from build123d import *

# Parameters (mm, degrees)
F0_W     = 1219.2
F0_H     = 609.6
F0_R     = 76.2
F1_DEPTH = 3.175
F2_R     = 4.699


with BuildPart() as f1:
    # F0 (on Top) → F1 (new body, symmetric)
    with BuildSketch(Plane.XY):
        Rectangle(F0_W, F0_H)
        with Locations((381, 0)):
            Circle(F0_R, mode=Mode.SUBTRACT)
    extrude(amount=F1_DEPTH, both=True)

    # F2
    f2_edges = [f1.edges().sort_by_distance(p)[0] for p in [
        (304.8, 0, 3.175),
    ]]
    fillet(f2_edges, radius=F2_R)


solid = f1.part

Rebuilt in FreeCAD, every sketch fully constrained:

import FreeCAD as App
import Part
import Sketcher
Q = App.Units.Quantity


def edges_at(feature, points):
    """Names of the edges that pass closest to the given points."""
    edges = feature.Shape.Edges
    near = lambda p: min(range(len(edges)), key=lambda i: edges[i].distToShape(Part.Vertex(*p))[0])
    return sorted({f"Edge{near(p) + 1}" for p in points})


def add_polygon(sketch, points):
    """Adds a closed chain of lines whose ends are joined by coincident constraints."""
    first, n = sketch.GeometryCount, len(points)
    for a, b in zip(points, points[1:] + points[:1]):
        sketch.addGeometry(Part.LineSegment(App.Vector(*a, 0), App.Vector(*b, 0)), False)
    for i in range(n):
        sketch.addConstraint(Sketcher.Constraint("Coincident", first + i, 2, first + (i + 1) % n, 1))

doc = App.newDocument("Part")
body = doc.addObject("PartDesign::Body", "Body")

# Sketch on XY plane
sketch1 = body.newObject("Sketcher::SketchObject", "Sketch")
sketch1.AttachmentSupport = (doc.getObject("XY_Plane"), [""])
sketch1.MapMode = "FlatFace"
add_polygon(sketch1, [(-609.6, 304.8), (-609.6, -304.8), (609.6, -304.8), (609.6, 304.8)])  # lines 0-3
sketch1.addGeometry(Part.Circle(App.Vector(381, 0, 0), App.Vector(0, 0, 1), 76.2), False)  # 4
sketch1.addConstraint(Sketcher.Constraint("Vertical", 0))
sketch1.addConstraint(Sketcher.Constraint("Horizontal", 1))
sketch1.addConstraint(Sketcher.Constraint("Vertical", 2))
sketch1.addConstraint(Sketcher.Constraint("Horizontal", 3))
sketch1.addConstraint(Sketcher.Constraint("Symmetric", 0, 2, 2, 2, -1, 1))
sketch1.addConstraint(Sketcher.Constraint("PointOnObject", 4, 3, -1))
sketch1.addConstraint(Sketcher.Constraint("Diameter", 4, Q("6 in")))
sketch1.addConstraint(Sketcher.Constraint("DistanceX", 1, 1, 1, 2, Q("48 in")))
sketch1.addConstraint(Sketcher.Constraint("DistanceY", 0, 2, 0, 1, Q("24 in")))
sketch1.addConstraint(Sketcher.Constraint("DistanceX", -1, 1, 4, 3, Q("15 in")))
pad1 = body.newObject("PartDesign::Pad", "Pad")
pad1.Profile = sketch1
pad1.Length = Q("0.25 in")
pad1.Midplane = True
doc.recompute()

fillet = body.newObject("PartDesign::Fillet", "Fillet")
fillet.Base = (pad1, edges_at(pad1, [(304.8, 0, 3.175)]))
fillet.Radius = Q("0.185 in")

doc.recompute()
